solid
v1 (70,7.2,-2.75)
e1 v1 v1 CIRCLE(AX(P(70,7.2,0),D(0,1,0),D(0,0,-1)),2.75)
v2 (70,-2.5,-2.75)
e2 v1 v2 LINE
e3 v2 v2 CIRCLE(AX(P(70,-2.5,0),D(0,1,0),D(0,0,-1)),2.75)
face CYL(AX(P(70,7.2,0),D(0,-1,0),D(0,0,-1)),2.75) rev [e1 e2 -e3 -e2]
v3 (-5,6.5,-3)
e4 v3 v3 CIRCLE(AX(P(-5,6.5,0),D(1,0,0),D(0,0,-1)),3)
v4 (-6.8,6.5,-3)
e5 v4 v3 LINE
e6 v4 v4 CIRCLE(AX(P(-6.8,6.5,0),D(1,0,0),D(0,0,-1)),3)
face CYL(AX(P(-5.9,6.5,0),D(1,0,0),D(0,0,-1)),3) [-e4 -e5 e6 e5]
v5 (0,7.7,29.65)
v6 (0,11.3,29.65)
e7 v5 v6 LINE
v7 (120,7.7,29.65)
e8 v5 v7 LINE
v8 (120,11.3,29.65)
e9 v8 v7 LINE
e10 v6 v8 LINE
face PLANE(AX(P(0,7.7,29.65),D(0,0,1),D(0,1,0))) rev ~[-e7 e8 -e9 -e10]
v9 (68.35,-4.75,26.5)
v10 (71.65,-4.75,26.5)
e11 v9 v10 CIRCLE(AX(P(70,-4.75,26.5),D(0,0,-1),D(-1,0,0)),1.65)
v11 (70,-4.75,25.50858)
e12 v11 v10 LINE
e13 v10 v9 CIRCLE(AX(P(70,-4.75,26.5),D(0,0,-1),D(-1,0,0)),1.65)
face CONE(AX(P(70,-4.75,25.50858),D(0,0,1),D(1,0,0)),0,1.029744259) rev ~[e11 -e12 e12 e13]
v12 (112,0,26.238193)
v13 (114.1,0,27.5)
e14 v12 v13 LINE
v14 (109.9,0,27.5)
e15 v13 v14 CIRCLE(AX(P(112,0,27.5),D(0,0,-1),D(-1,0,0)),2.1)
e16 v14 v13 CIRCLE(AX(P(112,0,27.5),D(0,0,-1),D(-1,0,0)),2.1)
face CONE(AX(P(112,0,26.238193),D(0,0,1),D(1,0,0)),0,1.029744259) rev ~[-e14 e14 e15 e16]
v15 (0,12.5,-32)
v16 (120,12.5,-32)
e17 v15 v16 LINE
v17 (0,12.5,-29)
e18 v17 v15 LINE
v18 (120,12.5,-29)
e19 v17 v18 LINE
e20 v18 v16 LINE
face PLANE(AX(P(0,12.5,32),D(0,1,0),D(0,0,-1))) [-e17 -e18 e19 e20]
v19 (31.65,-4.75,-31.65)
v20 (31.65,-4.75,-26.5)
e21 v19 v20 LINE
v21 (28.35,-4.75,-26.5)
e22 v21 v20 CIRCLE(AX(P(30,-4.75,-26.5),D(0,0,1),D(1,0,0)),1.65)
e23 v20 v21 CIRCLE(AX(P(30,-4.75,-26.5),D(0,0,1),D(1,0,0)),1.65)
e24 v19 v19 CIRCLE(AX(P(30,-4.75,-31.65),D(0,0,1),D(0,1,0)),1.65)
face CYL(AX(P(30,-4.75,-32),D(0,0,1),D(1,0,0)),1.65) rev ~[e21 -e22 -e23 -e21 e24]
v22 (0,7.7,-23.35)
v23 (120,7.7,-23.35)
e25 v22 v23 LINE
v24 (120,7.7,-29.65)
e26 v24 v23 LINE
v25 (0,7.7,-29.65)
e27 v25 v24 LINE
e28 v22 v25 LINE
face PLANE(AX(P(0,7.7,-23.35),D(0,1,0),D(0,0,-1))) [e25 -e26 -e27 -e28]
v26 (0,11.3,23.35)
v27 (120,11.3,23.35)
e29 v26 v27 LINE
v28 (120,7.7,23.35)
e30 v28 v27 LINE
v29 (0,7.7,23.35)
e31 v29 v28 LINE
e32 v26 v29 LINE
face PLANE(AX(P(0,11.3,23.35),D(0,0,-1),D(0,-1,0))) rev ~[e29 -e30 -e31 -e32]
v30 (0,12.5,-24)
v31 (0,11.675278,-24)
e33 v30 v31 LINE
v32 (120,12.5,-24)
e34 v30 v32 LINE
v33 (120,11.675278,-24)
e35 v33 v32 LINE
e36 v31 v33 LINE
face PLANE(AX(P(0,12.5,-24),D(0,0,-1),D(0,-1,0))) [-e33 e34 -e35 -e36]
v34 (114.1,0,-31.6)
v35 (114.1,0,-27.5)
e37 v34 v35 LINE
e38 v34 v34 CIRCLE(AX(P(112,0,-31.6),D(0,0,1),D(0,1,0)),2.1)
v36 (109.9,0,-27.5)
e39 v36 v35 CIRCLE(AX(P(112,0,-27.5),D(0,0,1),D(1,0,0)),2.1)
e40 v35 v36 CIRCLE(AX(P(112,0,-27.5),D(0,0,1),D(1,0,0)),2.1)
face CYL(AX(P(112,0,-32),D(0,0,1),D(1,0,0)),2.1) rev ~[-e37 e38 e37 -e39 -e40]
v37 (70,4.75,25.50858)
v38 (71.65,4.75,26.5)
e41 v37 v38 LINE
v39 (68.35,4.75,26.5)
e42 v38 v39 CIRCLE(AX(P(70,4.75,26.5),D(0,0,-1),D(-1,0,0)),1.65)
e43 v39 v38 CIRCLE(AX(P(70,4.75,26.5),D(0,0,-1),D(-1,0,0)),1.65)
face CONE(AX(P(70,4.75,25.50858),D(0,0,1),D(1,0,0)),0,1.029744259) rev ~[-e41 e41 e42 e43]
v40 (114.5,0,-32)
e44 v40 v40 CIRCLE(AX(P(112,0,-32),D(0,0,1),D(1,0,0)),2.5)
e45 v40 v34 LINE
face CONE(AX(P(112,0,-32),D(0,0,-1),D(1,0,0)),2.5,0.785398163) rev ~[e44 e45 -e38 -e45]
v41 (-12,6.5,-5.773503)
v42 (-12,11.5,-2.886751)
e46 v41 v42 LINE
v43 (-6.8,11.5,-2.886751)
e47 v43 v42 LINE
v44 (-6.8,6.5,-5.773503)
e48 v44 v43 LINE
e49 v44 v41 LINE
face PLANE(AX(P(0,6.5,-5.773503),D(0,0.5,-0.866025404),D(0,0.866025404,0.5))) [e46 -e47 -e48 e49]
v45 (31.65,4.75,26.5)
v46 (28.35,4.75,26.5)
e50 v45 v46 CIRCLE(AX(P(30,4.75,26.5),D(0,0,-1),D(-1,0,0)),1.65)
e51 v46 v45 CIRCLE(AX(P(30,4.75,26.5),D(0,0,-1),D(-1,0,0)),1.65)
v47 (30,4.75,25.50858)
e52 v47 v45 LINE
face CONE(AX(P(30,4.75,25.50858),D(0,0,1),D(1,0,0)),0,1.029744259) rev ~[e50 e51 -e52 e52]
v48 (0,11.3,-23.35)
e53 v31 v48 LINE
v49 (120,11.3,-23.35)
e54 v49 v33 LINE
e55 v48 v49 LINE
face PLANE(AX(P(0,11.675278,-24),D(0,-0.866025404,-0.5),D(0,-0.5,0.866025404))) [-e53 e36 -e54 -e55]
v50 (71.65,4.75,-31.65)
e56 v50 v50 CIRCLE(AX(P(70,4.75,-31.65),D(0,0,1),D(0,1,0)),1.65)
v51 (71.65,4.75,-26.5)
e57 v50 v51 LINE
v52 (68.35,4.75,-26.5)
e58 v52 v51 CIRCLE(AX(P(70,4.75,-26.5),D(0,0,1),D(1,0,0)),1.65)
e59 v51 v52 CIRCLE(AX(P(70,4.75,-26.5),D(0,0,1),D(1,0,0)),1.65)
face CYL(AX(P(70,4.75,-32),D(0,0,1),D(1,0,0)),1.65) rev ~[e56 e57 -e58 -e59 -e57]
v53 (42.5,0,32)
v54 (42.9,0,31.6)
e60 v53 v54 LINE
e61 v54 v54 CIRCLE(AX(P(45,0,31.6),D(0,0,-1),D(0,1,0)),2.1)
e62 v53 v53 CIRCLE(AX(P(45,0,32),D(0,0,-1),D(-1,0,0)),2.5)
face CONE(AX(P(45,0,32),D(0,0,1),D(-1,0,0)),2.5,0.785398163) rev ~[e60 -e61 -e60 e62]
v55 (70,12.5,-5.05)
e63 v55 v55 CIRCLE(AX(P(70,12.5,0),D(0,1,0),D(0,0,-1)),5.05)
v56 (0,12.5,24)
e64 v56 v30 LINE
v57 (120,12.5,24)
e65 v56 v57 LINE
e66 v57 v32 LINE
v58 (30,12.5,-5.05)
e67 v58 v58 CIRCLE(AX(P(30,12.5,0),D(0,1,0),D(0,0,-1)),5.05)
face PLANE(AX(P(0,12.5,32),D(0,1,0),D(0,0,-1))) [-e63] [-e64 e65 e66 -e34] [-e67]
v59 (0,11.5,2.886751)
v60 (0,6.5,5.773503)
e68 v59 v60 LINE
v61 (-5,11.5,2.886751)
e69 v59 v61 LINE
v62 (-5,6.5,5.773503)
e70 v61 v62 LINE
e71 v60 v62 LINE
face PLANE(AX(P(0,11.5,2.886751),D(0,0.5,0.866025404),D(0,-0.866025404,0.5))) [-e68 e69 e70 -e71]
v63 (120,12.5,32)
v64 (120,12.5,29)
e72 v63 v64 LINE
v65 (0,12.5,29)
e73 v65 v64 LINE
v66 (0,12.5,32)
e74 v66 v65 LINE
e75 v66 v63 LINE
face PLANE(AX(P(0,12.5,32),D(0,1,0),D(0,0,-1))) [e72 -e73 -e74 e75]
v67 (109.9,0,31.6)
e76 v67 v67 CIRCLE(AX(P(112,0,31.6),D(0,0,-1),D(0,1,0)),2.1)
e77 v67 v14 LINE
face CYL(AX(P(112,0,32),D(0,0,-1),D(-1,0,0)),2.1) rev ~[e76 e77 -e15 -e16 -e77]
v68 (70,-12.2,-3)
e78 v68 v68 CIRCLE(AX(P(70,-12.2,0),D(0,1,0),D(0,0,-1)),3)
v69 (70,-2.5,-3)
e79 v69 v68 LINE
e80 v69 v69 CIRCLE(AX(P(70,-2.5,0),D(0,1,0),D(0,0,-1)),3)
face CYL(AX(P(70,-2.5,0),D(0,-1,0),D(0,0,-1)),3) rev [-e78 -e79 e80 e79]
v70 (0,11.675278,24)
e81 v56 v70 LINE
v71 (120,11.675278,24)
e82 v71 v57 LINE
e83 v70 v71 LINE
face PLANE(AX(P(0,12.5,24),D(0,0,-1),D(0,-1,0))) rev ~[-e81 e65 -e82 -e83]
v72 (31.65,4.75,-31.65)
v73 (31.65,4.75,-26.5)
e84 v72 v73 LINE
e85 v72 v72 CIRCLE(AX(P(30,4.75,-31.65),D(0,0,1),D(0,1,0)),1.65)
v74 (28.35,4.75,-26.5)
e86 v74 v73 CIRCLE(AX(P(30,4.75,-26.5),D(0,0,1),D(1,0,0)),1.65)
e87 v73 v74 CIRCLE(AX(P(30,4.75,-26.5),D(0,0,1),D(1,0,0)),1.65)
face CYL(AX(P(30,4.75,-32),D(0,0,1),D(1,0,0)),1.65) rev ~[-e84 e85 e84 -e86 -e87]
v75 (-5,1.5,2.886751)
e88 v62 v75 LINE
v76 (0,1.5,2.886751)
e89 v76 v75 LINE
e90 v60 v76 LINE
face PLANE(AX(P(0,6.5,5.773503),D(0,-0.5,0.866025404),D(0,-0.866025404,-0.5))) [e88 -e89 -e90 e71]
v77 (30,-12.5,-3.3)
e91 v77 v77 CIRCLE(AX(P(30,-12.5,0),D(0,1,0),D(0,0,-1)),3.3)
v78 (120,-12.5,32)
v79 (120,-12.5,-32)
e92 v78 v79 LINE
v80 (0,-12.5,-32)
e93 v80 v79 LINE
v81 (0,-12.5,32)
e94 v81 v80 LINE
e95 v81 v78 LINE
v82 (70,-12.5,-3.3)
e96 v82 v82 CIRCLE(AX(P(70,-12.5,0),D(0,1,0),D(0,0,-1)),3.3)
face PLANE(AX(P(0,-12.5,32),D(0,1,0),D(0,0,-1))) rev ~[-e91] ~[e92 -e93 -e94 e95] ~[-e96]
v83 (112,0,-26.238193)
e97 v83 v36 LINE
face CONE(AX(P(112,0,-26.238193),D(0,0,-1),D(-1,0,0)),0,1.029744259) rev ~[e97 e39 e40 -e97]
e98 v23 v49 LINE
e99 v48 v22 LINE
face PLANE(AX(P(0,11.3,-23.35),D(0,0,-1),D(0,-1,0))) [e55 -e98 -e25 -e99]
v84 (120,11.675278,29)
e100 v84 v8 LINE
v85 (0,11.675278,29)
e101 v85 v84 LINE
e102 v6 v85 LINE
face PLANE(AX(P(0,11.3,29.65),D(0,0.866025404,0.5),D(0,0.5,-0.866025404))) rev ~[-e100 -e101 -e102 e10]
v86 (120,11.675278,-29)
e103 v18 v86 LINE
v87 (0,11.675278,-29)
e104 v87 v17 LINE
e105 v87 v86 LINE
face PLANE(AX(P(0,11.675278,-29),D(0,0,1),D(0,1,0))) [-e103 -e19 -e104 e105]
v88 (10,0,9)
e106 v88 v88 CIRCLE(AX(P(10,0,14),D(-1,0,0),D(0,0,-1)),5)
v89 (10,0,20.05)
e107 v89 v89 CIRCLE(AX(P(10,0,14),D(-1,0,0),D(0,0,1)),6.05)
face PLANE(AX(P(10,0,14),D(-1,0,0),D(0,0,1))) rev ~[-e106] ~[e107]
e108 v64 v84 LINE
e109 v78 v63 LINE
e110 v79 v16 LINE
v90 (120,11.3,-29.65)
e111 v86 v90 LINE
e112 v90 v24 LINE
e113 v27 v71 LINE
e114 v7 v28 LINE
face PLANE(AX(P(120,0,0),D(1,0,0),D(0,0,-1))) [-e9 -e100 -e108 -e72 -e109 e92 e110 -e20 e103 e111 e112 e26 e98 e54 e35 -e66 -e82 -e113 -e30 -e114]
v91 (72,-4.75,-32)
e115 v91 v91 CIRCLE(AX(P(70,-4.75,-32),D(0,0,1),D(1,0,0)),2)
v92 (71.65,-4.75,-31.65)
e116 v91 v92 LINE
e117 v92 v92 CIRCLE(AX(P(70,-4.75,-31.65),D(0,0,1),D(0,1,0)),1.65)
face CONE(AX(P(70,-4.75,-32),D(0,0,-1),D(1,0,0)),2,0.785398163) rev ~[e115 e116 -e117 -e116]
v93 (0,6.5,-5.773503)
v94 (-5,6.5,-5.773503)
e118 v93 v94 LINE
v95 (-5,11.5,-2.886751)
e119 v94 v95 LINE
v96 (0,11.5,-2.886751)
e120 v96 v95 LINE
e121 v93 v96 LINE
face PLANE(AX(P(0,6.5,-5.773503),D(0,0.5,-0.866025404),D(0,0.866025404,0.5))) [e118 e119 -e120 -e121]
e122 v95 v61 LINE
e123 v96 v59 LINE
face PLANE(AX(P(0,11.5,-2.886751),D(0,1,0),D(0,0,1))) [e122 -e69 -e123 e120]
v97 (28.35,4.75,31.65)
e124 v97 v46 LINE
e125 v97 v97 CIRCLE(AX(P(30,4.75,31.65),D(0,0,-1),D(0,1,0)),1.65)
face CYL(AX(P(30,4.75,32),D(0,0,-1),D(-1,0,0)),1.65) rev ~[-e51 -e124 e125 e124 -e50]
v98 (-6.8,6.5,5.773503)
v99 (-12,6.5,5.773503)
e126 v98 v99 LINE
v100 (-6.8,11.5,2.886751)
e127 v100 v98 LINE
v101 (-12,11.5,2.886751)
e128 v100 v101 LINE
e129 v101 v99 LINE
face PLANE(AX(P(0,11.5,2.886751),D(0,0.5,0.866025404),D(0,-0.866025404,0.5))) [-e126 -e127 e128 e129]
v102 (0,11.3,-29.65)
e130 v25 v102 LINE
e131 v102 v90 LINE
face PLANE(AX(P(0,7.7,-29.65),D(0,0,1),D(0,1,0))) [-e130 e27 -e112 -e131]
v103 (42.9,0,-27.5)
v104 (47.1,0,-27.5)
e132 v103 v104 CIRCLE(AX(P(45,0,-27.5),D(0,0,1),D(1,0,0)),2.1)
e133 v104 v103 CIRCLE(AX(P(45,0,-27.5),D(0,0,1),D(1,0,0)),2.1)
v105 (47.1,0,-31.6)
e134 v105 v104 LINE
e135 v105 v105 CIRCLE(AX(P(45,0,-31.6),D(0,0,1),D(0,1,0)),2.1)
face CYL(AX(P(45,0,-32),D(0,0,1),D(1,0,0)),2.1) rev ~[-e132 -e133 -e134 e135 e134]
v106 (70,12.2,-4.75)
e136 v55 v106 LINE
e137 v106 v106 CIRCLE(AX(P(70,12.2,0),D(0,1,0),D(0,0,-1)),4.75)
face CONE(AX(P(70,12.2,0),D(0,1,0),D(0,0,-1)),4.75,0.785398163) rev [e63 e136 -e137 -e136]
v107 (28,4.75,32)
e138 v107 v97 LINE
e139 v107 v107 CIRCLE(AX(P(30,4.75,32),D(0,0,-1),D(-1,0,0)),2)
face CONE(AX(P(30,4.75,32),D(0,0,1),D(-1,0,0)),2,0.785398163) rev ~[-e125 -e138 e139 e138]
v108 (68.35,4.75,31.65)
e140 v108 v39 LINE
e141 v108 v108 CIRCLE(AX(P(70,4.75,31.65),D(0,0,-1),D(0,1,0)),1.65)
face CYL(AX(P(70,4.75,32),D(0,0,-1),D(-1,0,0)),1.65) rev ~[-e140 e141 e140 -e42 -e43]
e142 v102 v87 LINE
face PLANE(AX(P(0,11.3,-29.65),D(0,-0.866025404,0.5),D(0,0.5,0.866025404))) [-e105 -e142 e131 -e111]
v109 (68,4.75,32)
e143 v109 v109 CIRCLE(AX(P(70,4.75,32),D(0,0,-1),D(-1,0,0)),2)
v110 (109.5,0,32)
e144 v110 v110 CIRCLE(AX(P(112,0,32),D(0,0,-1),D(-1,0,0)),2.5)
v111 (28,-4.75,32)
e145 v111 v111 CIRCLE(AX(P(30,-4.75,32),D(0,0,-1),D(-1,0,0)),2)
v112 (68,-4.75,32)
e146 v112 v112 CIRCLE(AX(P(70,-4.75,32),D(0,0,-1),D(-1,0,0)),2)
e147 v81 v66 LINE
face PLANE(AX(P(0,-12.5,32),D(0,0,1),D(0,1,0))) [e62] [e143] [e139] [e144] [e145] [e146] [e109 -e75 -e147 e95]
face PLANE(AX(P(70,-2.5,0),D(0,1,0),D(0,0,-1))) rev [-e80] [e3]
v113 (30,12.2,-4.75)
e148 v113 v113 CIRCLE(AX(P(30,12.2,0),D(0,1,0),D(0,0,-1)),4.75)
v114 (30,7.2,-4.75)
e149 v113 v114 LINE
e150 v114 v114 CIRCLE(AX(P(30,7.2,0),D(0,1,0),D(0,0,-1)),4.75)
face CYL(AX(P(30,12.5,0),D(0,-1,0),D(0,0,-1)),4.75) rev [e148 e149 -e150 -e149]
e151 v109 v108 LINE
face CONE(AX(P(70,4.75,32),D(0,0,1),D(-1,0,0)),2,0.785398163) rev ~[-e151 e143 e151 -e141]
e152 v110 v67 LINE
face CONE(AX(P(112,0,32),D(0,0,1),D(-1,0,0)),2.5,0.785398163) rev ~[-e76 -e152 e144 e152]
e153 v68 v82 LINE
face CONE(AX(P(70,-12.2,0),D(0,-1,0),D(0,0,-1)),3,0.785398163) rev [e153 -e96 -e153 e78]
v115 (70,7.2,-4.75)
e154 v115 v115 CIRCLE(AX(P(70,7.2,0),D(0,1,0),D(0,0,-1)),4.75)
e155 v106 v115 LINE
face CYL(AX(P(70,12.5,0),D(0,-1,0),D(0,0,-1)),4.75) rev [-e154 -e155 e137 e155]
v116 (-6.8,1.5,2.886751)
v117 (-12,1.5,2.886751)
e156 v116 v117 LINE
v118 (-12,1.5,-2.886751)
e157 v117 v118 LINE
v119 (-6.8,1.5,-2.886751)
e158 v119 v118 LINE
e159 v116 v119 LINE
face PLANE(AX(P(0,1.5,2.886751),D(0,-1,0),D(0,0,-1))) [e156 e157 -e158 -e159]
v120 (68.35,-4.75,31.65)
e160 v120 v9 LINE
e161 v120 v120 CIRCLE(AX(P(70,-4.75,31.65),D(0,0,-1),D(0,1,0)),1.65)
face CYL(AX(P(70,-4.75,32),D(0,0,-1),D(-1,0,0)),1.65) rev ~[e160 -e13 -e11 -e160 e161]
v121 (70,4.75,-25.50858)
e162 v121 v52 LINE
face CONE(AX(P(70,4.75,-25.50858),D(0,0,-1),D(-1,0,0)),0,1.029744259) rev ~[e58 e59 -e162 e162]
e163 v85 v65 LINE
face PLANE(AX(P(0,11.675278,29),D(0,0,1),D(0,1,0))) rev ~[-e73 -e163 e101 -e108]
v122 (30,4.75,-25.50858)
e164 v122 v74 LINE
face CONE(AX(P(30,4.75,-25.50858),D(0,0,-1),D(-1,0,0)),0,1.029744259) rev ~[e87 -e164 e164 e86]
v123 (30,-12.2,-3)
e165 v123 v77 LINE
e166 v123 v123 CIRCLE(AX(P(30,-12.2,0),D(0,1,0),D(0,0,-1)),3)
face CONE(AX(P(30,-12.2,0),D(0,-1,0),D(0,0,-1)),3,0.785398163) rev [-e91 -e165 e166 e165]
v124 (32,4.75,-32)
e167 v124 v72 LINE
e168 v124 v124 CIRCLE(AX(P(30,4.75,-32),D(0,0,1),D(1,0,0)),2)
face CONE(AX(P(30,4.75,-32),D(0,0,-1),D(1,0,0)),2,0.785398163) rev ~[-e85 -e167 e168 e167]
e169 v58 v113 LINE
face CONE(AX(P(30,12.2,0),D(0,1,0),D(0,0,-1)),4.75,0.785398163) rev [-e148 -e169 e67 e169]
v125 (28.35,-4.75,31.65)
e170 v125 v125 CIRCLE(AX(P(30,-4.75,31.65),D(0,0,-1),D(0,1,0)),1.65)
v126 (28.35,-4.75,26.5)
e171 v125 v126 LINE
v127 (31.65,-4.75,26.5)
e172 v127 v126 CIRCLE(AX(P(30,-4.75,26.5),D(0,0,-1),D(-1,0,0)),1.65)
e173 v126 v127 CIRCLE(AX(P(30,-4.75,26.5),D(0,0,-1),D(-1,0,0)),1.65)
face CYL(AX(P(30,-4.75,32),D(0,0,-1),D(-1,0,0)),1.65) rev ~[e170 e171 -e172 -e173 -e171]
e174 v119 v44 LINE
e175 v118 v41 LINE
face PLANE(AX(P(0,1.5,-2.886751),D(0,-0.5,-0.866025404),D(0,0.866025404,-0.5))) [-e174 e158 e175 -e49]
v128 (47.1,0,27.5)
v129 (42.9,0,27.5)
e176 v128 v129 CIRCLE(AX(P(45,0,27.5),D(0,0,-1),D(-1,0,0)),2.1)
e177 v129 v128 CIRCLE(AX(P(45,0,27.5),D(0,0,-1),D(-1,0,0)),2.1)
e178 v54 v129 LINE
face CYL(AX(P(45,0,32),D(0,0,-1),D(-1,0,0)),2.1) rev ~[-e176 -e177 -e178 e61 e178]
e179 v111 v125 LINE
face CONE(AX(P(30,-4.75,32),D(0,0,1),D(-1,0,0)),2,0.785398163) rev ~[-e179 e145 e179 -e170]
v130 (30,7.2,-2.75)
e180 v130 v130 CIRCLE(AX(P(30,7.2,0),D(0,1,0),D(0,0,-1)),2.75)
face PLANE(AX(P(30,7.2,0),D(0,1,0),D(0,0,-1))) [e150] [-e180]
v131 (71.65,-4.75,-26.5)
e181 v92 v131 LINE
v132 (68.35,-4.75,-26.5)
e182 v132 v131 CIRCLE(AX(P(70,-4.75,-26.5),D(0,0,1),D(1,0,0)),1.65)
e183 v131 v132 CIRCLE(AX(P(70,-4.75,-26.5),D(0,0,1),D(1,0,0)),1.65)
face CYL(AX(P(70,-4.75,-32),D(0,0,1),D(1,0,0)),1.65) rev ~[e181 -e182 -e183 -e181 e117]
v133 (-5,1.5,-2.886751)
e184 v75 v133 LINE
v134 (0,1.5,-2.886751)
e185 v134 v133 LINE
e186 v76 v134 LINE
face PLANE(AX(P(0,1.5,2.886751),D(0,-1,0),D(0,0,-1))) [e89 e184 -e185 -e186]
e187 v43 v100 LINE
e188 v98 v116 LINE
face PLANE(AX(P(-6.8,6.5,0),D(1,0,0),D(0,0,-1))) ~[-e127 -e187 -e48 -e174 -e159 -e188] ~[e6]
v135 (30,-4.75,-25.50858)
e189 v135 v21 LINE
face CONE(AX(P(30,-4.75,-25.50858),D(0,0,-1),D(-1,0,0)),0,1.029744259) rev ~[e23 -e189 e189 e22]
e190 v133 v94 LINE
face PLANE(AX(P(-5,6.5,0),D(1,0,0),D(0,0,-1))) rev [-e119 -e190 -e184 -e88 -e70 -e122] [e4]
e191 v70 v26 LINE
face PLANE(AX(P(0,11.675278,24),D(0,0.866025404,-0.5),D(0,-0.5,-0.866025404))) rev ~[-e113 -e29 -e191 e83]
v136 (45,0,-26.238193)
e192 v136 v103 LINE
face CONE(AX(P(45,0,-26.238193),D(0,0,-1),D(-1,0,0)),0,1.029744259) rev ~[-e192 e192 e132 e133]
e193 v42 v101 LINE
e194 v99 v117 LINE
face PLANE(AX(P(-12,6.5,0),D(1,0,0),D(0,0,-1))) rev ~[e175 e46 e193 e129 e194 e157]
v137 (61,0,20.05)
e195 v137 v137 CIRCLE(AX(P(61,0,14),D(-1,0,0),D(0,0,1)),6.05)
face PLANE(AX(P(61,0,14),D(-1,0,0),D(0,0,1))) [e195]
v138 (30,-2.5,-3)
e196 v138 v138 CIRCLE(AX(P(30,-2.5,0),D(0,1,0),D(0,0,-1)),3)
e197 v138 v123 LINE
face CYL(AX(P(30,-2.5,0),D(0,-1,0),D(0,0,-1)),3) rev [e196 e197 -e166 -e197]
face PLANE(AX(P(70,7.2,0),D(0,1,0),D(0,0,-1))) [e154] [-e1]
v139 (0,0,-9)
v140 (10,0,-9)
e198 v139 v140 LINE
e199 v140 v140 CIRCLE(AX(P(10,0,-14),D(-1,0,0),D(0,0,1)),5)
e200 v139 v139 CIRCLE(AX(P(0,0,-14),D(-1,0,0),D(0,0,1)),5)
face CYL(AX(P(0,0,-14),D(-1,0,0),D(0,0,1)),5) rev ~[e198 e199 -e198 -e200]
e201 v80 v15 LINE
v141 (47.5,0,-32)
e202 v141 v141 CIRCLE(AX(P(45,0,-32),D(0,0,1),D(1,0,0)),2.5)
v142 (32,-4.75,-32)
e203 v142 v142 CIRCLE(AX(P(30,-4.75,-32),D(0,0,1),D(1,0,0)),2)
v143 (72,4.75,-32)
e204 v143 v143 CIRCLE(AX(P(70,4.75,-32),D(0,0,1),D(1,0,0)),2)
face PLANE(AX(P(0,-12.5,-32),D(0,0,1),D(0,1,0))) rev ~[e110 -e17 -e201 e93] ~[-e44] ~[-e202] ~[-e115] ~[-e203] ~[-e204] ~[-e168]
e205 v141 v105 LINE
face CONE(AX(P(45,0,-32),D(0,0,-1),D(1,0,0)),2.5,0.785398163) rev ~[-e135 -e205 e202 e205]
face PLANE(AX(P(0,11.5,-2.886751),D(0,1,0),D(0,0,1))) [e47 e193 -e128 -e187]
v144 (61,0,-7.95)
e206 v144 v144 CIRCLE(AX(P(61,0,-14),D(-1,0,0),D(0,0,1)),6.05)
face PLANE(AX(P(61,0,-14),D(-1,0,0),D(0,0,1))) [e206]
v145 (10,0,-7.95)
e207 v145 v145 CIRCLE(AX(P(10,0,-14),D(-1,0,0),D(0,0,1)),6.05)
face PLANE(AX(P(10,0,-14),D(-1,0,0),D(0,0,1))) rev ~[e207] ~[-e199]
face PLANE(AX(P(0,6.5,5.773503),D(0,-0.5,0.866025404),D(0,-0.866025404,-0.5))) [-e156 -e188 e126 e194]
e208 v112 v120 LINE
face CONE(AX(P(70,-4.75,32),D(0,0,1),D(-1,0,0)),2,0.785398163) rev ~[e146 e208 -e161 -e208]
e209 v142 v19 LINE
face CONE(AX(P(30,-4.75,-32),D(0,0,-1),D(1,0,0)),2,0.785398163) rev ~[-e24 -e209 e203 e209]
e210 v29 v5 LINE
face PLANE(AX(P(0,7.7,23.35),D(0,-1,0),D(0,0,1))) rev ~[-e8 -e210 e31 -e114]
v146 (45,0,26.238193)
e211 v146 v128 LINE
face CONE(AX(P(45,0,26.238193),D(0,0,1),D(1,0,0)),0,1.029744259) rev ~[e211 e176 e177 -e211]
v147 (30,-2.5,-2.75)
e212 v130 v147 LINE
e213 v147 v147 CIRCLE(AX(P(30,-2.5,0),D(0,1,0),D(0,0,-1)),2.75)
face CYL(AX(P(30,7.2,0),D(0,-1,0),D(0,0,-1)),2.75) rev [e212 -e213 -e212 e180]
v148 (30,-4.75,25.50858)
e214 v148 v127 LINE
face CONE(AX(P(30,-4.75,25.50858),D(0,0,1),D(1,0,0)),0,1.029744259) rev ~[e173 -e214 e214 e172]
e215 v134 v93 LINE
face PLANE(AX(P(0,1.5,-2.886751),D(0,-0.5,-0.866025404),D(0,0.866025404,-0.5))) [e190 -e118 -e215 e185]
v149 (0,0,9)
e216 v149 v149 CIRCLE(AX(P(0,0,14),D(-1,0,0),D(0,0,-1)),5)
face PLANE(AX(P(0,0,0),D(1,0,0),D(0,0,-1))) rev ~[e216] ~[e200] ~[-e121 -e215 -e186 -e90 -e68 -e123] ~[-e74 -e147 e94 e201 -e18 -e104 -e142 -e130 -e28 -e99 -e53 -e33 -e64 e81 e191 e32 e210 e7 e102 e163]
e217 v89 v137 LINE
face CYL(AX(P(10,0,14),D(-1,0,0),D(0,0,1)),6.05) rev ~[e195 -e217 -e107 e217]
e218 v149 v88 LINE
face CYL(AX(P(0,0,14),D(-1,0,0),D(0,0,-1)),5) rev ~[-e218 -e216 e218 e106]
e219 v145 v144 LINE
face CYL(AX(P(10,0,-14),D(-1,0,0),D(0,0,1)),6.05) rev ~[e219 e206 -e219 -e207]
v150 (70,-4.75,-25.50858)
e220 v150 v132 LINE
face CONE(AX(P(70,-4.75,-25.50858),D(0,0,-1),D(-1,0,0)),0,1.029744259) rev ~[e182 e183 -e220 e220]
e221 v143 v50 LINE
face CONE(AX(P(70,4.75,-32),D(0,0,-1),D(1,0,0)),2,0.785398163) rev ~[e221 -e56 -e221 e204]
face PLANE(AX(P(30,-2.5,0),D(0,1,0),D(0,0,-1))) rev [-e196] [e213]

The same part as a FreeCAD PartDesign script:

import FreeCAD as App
import Part
import Sketcher
Q = App.Units.Quantity


def edges_at(feature, points):
    """Names of the edges that pass closest to the given points."""
    edges = feature.Shape.Edges
    near = lambda p: min(range(len(edges)), key=lambda i: edges[i].distToShape(Part.Vertex(*p))[0])
    return sorted({f"Edge{near(p) + 1}" for p in points})

doc = App.newDocument("Part")
body = doc.addObject("PartDesign::Body", "Body")

sketch1 = doc.addObject("Sketcher::SketchObject", "Sketch")
body.addObject(sketch1)
sketch1.AttachmentSupport = (doc.YZ_Plane, [""])
sketch1.MapMode = "FlatFace"
sketch1.addGeometry(Part.LineSegment(App.Vector(12, 32, 0), App.Vector(-12, 32, 0)), False)
sketch1.addGeometry(Part.LineSegment(App.Vector(-12, 32, 0), App.Vector(-12, -32, 0)), False)
sketch1.addGeometry(Part.LineSegment(App.Vector(-12, -32, 0), App.Vector(12, -32, 0)), False)
sketch1.addGeometry(Part.LineSegment(App.Vector(12, -32, 0), App.Vector(12, 32, 0)), False)
sketch1.addConstraint(Sketcher.Constraint("Coincident", 0, 2, 1, 1))
sketch1.addConstraint(Sketcher.Constraint("Coincident", 1, 2, 2, 1))
sketch1.addConstraint(Sketcher.Constraint("Coincident", 2, 2, 3, 1))
sketch1.addConstraint(Sketcher.Constraint("Coincident", 3, 2, 0, 1))
sketch1.addConstraint(Sketcher.Constraint("Horizontal", 0))
sketch1.addConstraint(Sketcher.Constraint("Vertical", 1))
sketch1.addConstraint(Sketcher.Constraint("Horizontal", 2))
sketch1.addConstraint(Sketcher.Constraint("Vertical", 3))
sketch1.addConstraint(Sketcher.Constraint("Symmetric", 0, 2, 2, 2, -1, 1))
sketch1.addConstraint(Sketcher.Constraint("DistanceX", 0, 2, 0, 1, 25.0))
sketch1.addConstraint(Sketcher.Constraint("DistanceY", 1, 2, 1, 1, 64.0))
pad1 = doc.addObject("PartDesign::Pad", "Pad")
body.addObject(pad1)
pad1.Profile = sketch1
pad1.Length = 120

sketch2 = doc.addObject("Sketcher::SketchObject", "Sketch001")
body.addObject(sketch2)
sketch2.AttachmentSupport = (doc.YZ_Plane, [""])
sketch2.MapMode = "FlatFace"
sketch2.addGeometry(Part.Circle(App.Vector(0, -14, 0), App.Vector(0, 0, 1), 5), False)
sketch2.addGeometry(Part.Circle(App.Vector(0, 14, 0), App.Vector(0, 0, 1), 5), False)
sketch2.addConstraint(Sketcher.Constraint("Equal", 0, 1))
sketch2.addConstraint(Sketcher.Constraint("Symmetric", 0, 3, 1, 3, -1, 1))
sketch2.addConstraint(Sketcher.Constraint("PointOnObject", 0, 3, -2))
sketch2.addConstraint(Sketcher.Constraint("Diameter", 0, 10.0))
sketch2.addConstraint(Sketcher.Constraint("DistanceY", 0, 3, -1, 1, 14.0))
pocket1 = doc.addObject("PartDesign::Pocket", "Pocket")
body.addObject(pocket1)
pocket1.Profile = sketch2
pocket1.Length = 10
pocket1.Reversed = True

sketch3 = doc.addObject("Sketcher::SketchObject", "Sketch002")
body.addObject(sketch3)
sketch3.AttachmentSupport = (doc.YZ_Plane, [""])
sketch3.MapMode = "FlatFace"
sketch3.AttachmentOffset = App.Placement(App.Vector(0, 0, 10), App.Rotation())
sketch3.addGeometry(Part.Circle(App.Vector(0, 14, 0), App.Vector(0, 0, 1), 6), False)
sketch3.addGeometry(Part.Circle(App.Vector(0, -14, 0), App.Vector(0, 0, 1), 6), False)
sketch3.addConstraint(Sketcher.Constraint("Equal", 0, 1))
sketch3.addConstraint(Sketcher.Constraint("Symmetric", 0, 3, 1, 3, -1, 1))
sketch3.addConstraint(Sketcher.Constraint("PointOnObject", 0, 3, -2))
sketch3.addConstraint(Sketcher.Constraint("Diameter", 0, 12.1))
sketch3.addConstraint(Sketcher.Constraint("DistanceY", -1, 1, 0, 3, 14.0))
pocket2 = doc.addObject("PartDesign::Pocket", "Pocket001")
body.addObject(pocket2)
pocket2.Profile = sketch3
pocket2.Length = 51
pocket2.Reversed = True

sketch4 = doc.addObject("Sketcher::SketchObject", "Sketch003")
body.addObject(sketch4)
sketch4.AttachmentSupport = (doc.YZ_Plane, [""])
sketch4.MapMode = "FlatFace"
sketch4.addGeometry(Part.LineSegment(App.Vector(7.7, 23.4, 0), App.Vector(7.7, 29.6, 0)), False)
sketch4.addGeometry(Part.LineSegment(App.Vector(7.7, 29.6, 0), App.Vector(11.3, 29.6, 0)), False)
sketch4.addGeometry(Part.LineSegment(App.Vector(11.3, 29.6, 0), App.Vector(11.7, 29, 0)), False)
sketch4.addGeometry(Part.LineSegment(App.Vector(11.7, 29, 0), App.Vector(12.5, 29, 0)), False)
sketch4.addGeometry(Part.LineSegment(App.Vector(12.5, 29, 0), App.Vector(12.5, 24, 0)), False)
sketch4.addGeometry(Part.LineSegment(App.Vector(12.5, 24, 0), App.Vector(11.7, 24, 0)), False)
sketch4.addGeometry(Part.LineSegment(App.Vector(11.7, 24, 0), App.Vector(11.3, 23.4, 0)), False)
sketch4.addGeometry(Part.LineSegment(App.Vector(11.3, 23.4, 0), App.Vector(7.7, 23.4, 0)), False)
sketch4.addGeometry(Part.LineSegment(App.Vector(7.7, -23.4, 0), App.Vector(11.3, -23.4, 0)), False)
sketch4.addGeometry(Part.LineSegment(App.Vector(11.3, -23.4, 0), App.Vector(11.7, -24, 0)), False)
sketch4.addGeometry(Part.LineSegment(App.Vector(11.7, -24, 0), App.Vector(12.5, -24, 0)), False)
sketch4.addGeometry(Part.LineSegment(App.Vector(12.5, -24, 0), App.Vector(12.5, -29, 0)), False)
sketch4.addGeometry(Part.LineSegment(App.Vector(12.5, -29, 0), App.Vector(11.7, -29, 0)), False)
sketch4.addGeometry(Part.LineSegment(App.Vector(11.7, -29, 0), App.Vector(11.3, -29.6, 0)), False)
sketch4.addGeometry(Part.LineSegment(App.Vector(11.3, -29.6, 0), App.Vector(7.7, -29.6, 0)), False)
sketch4.addGeometry(Part.LineSegment(App.Vector(7.7, -29.6, 0), App.Vector(7.7, -23.4, 0)), False)
sketch4.addConstraint(Sketcher.Constraint("Coincident", 0, 2, 1, 1))
sketch4.addConstraint(Sketcher.Constraint("Coincident", 1, 2, 2, 1))
sketch4.addConstraint(Sketcher.Constraint("Coincident", 2, 2, 3, 1))
sketch4.addConstraint(Sketcher.Constraint("Coincident", 3, 2, 4, 1))
sketch4.addConstraint(Sketcher.Constraint("Coincident", 4, 2, 5, 1))
sketch4.addConstraint(Sketcher.Constraint("Coincident", 5, 2, 6, 1))
sketch4.addConstraint(Sketcher.Constraint("Coincident", 6, 2, 7, 1))
sketch4.addConstraint(Sketcher.Constraint("Coincident", 7, 2, 0, 1))
sketch4.addConstraint(Sketcher.Constraint("Coincident", 8, 2, 9, 1))
sketch4.addConstraint(Sketcher.Constraint("Coincident", 9, 2, 10, 1))
sketch4.addConstraint(Sketcher.Constraint("Coincident", 10, 2, 11, 1))
sketch4.addConstraint(Sketcher.Constraint("Coincident", 11, 2, 12, 1))
sketch4.addConstraint(Sketcher.Constraint("Coincident", 12, 2, 13, 1))
sketch4.addConstraint(Sketcher.Constraint("Coincident", 13, 2, 14, 1))
sketch4.addConstraint(Sketcher.Constraint("Coincident", 14, 2, 15, 1))
sketch4.addConstraint(Sketcher.Constraint("Coincident", 15, 2, 8, 1))
sketch4.addConstraint(Sketcher.Constraint("Vertical", 0))
sketch4.addConstraint(Sketcher.Constraint("Horizontal", 1))
sketch4.addConstraint(Sketcher.Constraint("Horizontal", 3))
sketch4.addConstraint(Sketcher.Constraint("Vertical", 4))
sketch4.addConstraint(Sketcher.Constraint("Horizontal", 5))
sketch4.addConstraint(Sketcher.Constraint("Horizontal", 7))
sketch4.addConstraint(Sketcher.Constraint("Horizontal", 8))
sketch4.addConstraint(Sketcher.Constraint("Horizontal", 10))
sketch4.addConstraint(Sketcher.Constraint("Vertical", 11))
sketch4.addConstraint(Sketcher.Constraint("Horizontal", 12))
sketch4.addConstraint(Sketcher.Constraint("Horizontal", 14))
sketch4.addConstraint(Sketcher.Constraint("Vertical", 15))
sketch4.addConstraint(Sketcher.Constraint("Symmetric", 6, 2, 8, 2, -1))
sketch4.addConstraint(Sketcher.Constraint("Symmetric", 5, 2, 9, 2, -1))
sketch4.addConstraint(Sketcher.Constraint("Symmetric", 3, 2, 11, 2, -1))
sketch4.addConstraint(Sketcher.Constraint("Symmetric", 1, 2, 13, 2, -1))
sketch4.addConstraint(Sketcher.Constraint("Parallel", 2, 9))
sketch4.addConstraint(Sketcher.Constraint("Parallel", 6, 13))
sketch4.addConstraint(Sketcher.Constraint("Vertical", 2, 2, 5, 2))
sketch4.addConstraint(Sketcher.Constraint("Vertical", 1, 2, 6, 2))
sketch4.addConstraint(Sketcher.Constraint("Vertical", 7, 2, 14, 2))
sketch4.addConstraint(Sketcher.Constraint("DistanceY", 4, 2, 4, 1, 5.0))
sketch4.addConstraint(Sketcher.Constraint("Angle", 2, Q("-60 deg")))
sketch4.addConstraint(Sketcher.Constraint("DistanceX", 1, 1, 1, 2, 3.6))
sketch4.addConstraint(Sketcher.Constraint("DistanceY", 0, 1, 0, 2, 6.3))
sketch4.addConstraint(Sketcher.Constraint("DistanceY", -1, 1, 2, 2, 29.0))
sketch4.addConstraint(Sketcher.Constraint("DistanceX", -1, 1, 0, 2, 7.7))
sketch4.addConstraint(Sketcher.Constraint("DistanceX", -1, 1, 3, 2, 12.5))
pocket3 = doc.addObject("PartDesign::Pocket", "Pocket002")
body.addObject(pocket3)
pocket3.Profile = sketch4
pocket3.Type = "ThroughAll"
pocket3.Reversed = True

sketch5 = doc.addObject("Sketcher::SketchObject", "Sketch004")
body.addObject(sketch5)
sketch5.AttachmentSupport = (doc.XY_Plane, [""])
sketch5.MapMode = "FlatFace"
sketch5.addGeometry(Part.LineSegment(App.Vector(30, 12.5, 0), App.Vector(25.2, 12.5, 0)), False)
sketch5.addGeometry(Part.LineSegment(App.Vector(25.2, 12.5, 0), App.Vector(25.2, 7.2, 0)), False)
sketch5.addGeometry(Part.LineSegment(App.Vector(25.2, 7.2, 0), App.Vector(27.2, 7.2, 0)), False)
sketch5.addGeometry(Part.LineSegment(App.Vector(27.2, 7.2, 0), App.Vector(27.2, -12.5, 0)), False)
sketch5.addGeometry(Part.LineSegment(App.Vector(27.2, -12.5, 0), App.Vector(30, -12.5, 0)), False)
sketch5.addGeometry(Part.LineSegment(App.Vector(30, -12.5, 0), App.Vector(30, 12.5, 0)), False)
sketch5.addGeometry(Part.LineSegment(App.Vector(30, -12.5, 0), App.Vector(30, 12.5, 0)), True)
sketch5.addConstraint(Sketcher.Constraint("Coincident", 0, 2, 1, 1))
sketch5.addConstraint(Sketcher.Constraint("Coincident", 1, 2, 2, 1))
sketch5.addConstraint(Sketcher.Constraint("Coincident", 2, 2, 3, 1))
sketch5.addConstraint(Sketcher.Constraint("Coincident", 3, 2, 4, 1))
sketch5.addConstraint(Sketcher.Constraint("Coincident", 4, 2, 5, 1))
sketch5.addConstraint(Sketcher.Constraint("Coincident", 5, 2, 0, 1))
sketch5.addConstraint(Sketcher.Constraint("Horizontal", 0))
sketch5.addConstraint(Sketcher.Constraint("Vertical", 1))
sketch5.addConstraint(Sketcher.Constraint("Horizontal", 2))
sketch5.addConstraint(Sketcher.Constraint("Vertical", 3))
sketch5.addConstraint(Sketcher.Constraint("Horizontal", 4))
sketch5.addConstraint(Sketcher.Constraint("Vertical", 5))
sketch5.addConstraint(Sketcher.Constraint("Vertical", 6))
sketch5.addConstraint(Sketcher.Constraint("Coincident", 6, 1, 4, 2))
sketch5.addConstraint(Sketcher.Constraint("Horizontal", 0, 2, 6, 2))
sketch5.addConstraint(Sketcher.Constraint("DistanceX", 2, 1, 2, 2, 2.0))
sketch5.addConstraint(Sketcher.Constraint("DistanceY", 5, 1, 5, 2, 25.0))
sketch5.addConstraint(Sketcher.Constraint("DistanceY", 1, 2, 1, 1, 5.3))
sketch5.addConstraint(Sketcher.Constraint("DistanceX", -1, 1, 4, 2, 30.0))
sketch5.addConstraint(Sketcher.Constraint("DistanceX", 0, 2, 0, 1, 4.75))
sketch5.addConstraint(Sketcher.Constraint("DistanceY", -1, 1, 0, 2, 12.5))
groove = doc.addObject("PartDesign::Groove", "Groove")
body.addObject(groove)
groove.Profile = sketch5
groove.ReferenceAxis = (sketch5, ["Axis0"])
groove.Angle = 360
doc.recompute()

chamfer = doc.addObject("PartDesign::Chamfer", "Chamfer")
body.addObject(chamfer)
chamfer.Base = (groove, edges_at(groove, [(30, 12.5, 4.75)]))
chamfer.Size = 0.3
doc.recompute()

linearpattern = doc.addObject("PartDesign::LinearPattern", "LinearPattern")
body.addObject(linearpattern)
linearpattern.Originals = [groove]
linearpattern.Direction = (doc.X_Axis, [""])
linearpattern.Mode = "offset"
linearpattern.Offset = 40
linearpattern.Occurrences = 2
body.Tip = linearpattern
doc.recompute()

chamfer2 = doc.addObject("PartDesign::Chamfer", "Chamfer001")
body.addObject(chamfer2)
chamfer2.Base = (linearpattern, edges_at(linearpattern, [(70, 12.5, 4.75)]))
chamfer2.Size = 0.3

sketch6 = doc.addObject("Sketcher::SketchObject", "Sketch005")
body.addObject(sketch6)
sketch6.AttachmentSupport = (doc.YZ_Plane, [""])
sketch6.MapMode = "FlatFace"
sketch6.AttachmentOffset = App.Placement(App.Vector(0, 0, 30), App.Rotation())
sketch6.addGeometry(Part.LineSegment(App.Vector(0.15, 0, 0), App.Vector(-12.5, 0, 0)), False)
sketch6.addGeometry(Part.LineSegment(App.Vector(-12.5, 0, 0), App.Vector(-12.5, -3.3, 0)), False)
sketch6.addGeometry(Part.LineSegment(App.Vector(-12.5, -3.3, 0), App.Vector(-12.2, -3, 0)), False)
sketch6.addGeometry(Part.LineSegment(App.Vector(-12.2, -3, 0), App.Vector(-2.5, -3, 0)), False)
sketch6.addGeometry(Part.LineSegment(App.Vector(-2.5, -3, 0), App.Vector(-2.5, -2.75, 0)), False)
sketch6.addGeometry(Part.LineSegment(App.Vector(-2.5, -2.75, 0), App.Vector(-1.5, -2.75, 0)), False)
sketch6.addGeometry(Part.LineSegment(App.Vector(-1.5, -2.75, 0), App.Vector(0.15, 0, 0)), False)
sketch6.addConstraint(Sketcher.Constraint("Coincident", 0, 2, 1, 1))
sketch6.addConstraint(Sketcher.Constraint("Coincident", 1, 2, 2, 1))
sketch6.addConstraint(Sketcher.Constraint("Coincident", 2, 2, 3, 1))
sketch6.addConstraint(Sketcher.Constraint("Coincident", 3, 2, 4, 1))
sketch6.addConstraint(Sketcher.Constraint("Coincident", 4, 2, 5, 1))
sketch6.addConstraint(Sketcher.Constraint("Coincident", 5, 2, 6, 1))
sketch6.addConstraint(Sketcher.Constraint("Coincident", 6, 2, 0, 1))
sketch6.addConstraint(Sketcher.Constraint("Horizontal", 0))
sketch6.addConstraint(Sketcher.Constraint("Vertical", 1))
sketch6.addConstraint(Sketcher.Constraint("Horizontal", 3))
sketch6.addConstraint(Sketcher.Constraint("Vertical", 4))
sketch6.addConstraint(Sketcher.Constraint("Horizontal", 5))
sketch6.addConstraint(Sketcher.Constraint("PointOnObject", 0, 2, -1))
sketch6.addConstraint(Sketcher.Constraint("DistanceX", 5, 1, 5, 2, 1.0))
sketch6.addConstraint(Sketcher.Constraint("Angle", 2, Q("45 deg")))
sketch6.addConstraint(Sketcher.Constraint("Angle", 6, Q("59 deg")))
sketch6.addConstraint(Sketcher.Constraint("DistanceX", 3, 1, 3, 2, 9.7))
sketch6.addConstraint(Sketcher.Constraint("DistanceY", 1, 2, 1, 1, 3.3))
sketch6.addConstraint(Sketcher.Constraint("DistanceY", 2, 2, -1, 1, 3.0))
sketch6.addConstraint(Sketcher.Constraint("DistanceY", 4, 1, 4, 2, 0.25))
sketch6.addConstraint(Sketcher.Constraint("DistanceX", 0, 2, -1, 1, 12.5))
groove2 = doc.addObject("PartDesign::Groove", "Groove001")
body.addObject(groove2)
groove2.Profile = sketch6
groove2.ReferenceAxis = (sketch6, ["H_Axis"])
groove2.Angle = 360
doc.recompute()

linearpattern2 = doc.addObject("PartDesign::LinearPattern", "LinearPattern001")
body.addObject(linearpattern2)
linearpattern2.Originals = [groove2]
linearpattern2.Direction = (doc.X_Axis, [""])
linearpattern2.Mode = "offset"
linearpattern2.Offset = 40
linearpattern2.Occurrences = 2
body.Tip = linearpattern2

sketch7 = doc.addObject("Sketcher::SketchObject", "Sketch006")
body.addObject(sketch7)
sketch7.AttachmentSupport = (doc.YZ_Plane, [""])
sketch7.MapMode = "FlatFace"
sketch7.addGeometry(Part.LineSegment(App.Vector(12, 3, 0), App.Vector(12, -3, 0)), False)
sketch7.addGeometry(Part.LineSegment(App.Vector(12, -3, 0), App.Vector(6, -6, 0)), False)
sketch7.addGeometry(Part.LineSegment(App.Vector(6, -6, 0), App.Vector(2, -3, 0)), False)
sketch7.addGeometry(Part.LineSegment(App.Vector(2, -3, 0), App.Vector(2, 3, 0)), False)
sketch7.addGeometry(Part.LineSegment(App.Vector(2, 3, 0), App.Vector(6, 6, 0)), False)
sketch7.addGeometry(Part.LineSegment(App.Vector(6, 6, 0), App.Vector(12, 3, 0)), False)
sketch7.addConstraint(Sketcher.Constraint("Coincident", 0, 2, 1, 1))
sketch7.addConstraint(Sketcher.Constraint("Coincident", 1, 2, 2, 1))
sketch7.addConstraint(Sketcher.Constraint("Coincident", 2, 2, 3, 1))
sketch7.addConstraint(Sketcher.Constraint("Coincident", 3, 2, 4, 1))
sketch7.addConstraint(Sketcher.Constraint("Coincident", 4, 2, 5, 1))
sketch7.addConstraint(Sketcher.Constraint("Coincident", 5, 2, 0, 1))
sketch7.addConstraint(Sketcher.Constraint("Vertical", 0))
sketch7.addConstraint(Sketcher.Constraint("Vertical", 3))
sketch7.addConstraint(Sketcher.Constraint("Symmetric", 1, 2, 4, 2, -1))
sketch7.addConstraint(Sketcher.Constraint("Parallel", 1, 4))
sketch7.addConstraint(Sketcher.Constraint("Parallel", 2, 5))
sketch7.addConstraint(Sketcher.Constraint("Horizontal", 0, 2, 2, 2))
sketch7.addConstraint(Sketcher.Constraint("Horizontal", 3, 2, 5, 2))
sketch7.addConstraint(Sketcher.Constraint("Angle", 1, Q("-150 deg")))
sketch7.addConstraint(Sketcher.Constraint("DistanceX", 1, 2, 0, 2, 5.0))
sketch7.addConstraint(Sketcher.Constraint("DistanceX", -1, 1, 0, 2, 11.5))
sketch7.addConstraint(Sketcher.Constraint("DistanceY", 0, 2, 0, 1, 5.773503))
pad2 = doc.addObject("PartDesign::Pad", "Pad001")
body.addObject(pad2)
pad2.Profile = sketch7
pad2.Length = 12
pad2.Reversed = True

sketch8 = doc.addObject("Sketcher::SketchObject", "Sketch007")
body.addObject(sketch8)
sketch8.AttachmentSupport = (doc.XY_Plane, [""])
sketch8.MapMode = "FlatFace"
sketch8.addGeometry(Part.LineSegment(App.Vector(-6.8, 34.5, 0), App.Vector(-6.8, 9.5, 0)), False)
sketch8.addGeometry(Part.LineSegment(App.Vector(-6.8, 9.5, 0), App.Vector(-5, 9.5, 0)), False)
sketch8.addGeometry(Part.LineSegment(App.Vector(-5, 9.5, 0), App.Vector(-5, 34.5, 0)), False)
sketch8.addGeometry(Part.LineSegment(App.Vector(-5, 34.5, 0), App.Vector(-6.8, 34.5, 0)), False)
sketch8.addGeometry(Part.LineSegment(App.Vector(-6.8, 6.5, 0), App.Vector(-5, 6.5, 0)), True)
sketch8.addConstraint(Sketcher.Constraint("Coincident", 0, 2, 1, 1))
sketch8.addConstraint(Sketcher.Constraint("Coincident", 1, 2, 2, 1))
sketch8.addConstraint(Sketcher.Constraint("Coincident", 2, 2, 3, 1))
sketch8.addConstraint(Sketcher.Constraint("Coincident", 3, 2, 0, 1))
sketch8.addConstraint(Sketcher.Constraint("Vertical", 0))
sketch8.addConstraint(Sketcher.Constraint("Horizontal", 1))
sketch8.addConstraint(Sketcher.Constraint("Vertical", 2))
sketch8.addConstraint(Sketcher.Constraint("Horizontal", 3))
sketch8.addConstraint(Sketcher.Constraint("Horizontal", 4))
sketch8.addConstraint(Sketcher.Constraint("Vertical", 3, 2, 4, 1))
sketch8.addConstraint(Sketcher.Constraint("Vertical", 2, 2, 4, 2))
sketch8.addConstraint(Sketcher.Constraint("DistanceY", 0, 2, 0, 1, 25.0))
sketch8.addConstraint(Sketcher.Constraint("DistanceX", 1, 1, 1, 2, 1.8))
sketch8.addConstraint(Sketcher.Constraint("DistanceX", 1, 2, -1, 1, 5.0))
sketch8.addConstraint(Sketcher.Constraint("DistanceY", 4, 1, 0, 2, 3.0))
sketch8.addConstraint(Sketcher.Constraint("DistanceY", -1, 1, 0, 2, 9.5))
groove3 = doc.addObject("PartDesign::Groove", "Groove002")
body.addObject(groove3)
groove3.Profile = sketch8
groove3.ReferenceAxis = (sketch8, ["Axis0"])
groove3.Angle = 360

sketch9 = doc.addObject("Sketcher::SketchObject", "Sketch008")
body.addObject(sketch9)
sketch9.AttachmentSupport = (doc.XY_Plane, [""])
sketch9.MapMode = "FlatFace"
sketch9.AttachmentOffset = App.Placement(App.Vector(0, 0, 32), App.Rotation())
sketch9.addGeometry(Part.Circle(App.Vector(45, 0, 0), App.Vector(0, 0, 1), 2.1), False)
sketch9.addGeometry(Part.Circle(App.Vector(112, 0, 0), App.Vector(0, 0, 1), 2.1), False)
sketch9.addConstraint(Sketcher.Constraint("Equal", 0, 1))
sketch9.addConstraint(Sketcher.Constraint("PointOnObject", 0, 3, -1))
sketch9.addConstraint(Sketcher.Constraint("PointOnObject", 1, 3, -1))
sketch9.addConstraint(Sketcher.Constraint("Diameter", 0, 4.2))
sketch9.addConstraint(Sketcher.Constraint("DistanceX", -1, 1, 0, 3, 45.0))
sketch9.addConstraint(Sketcher.Constraint("DistanceX", -1, 1, 1, 3, 112.0))
doc.recompute()
hole = doc.addObject("PartDesign::Hole", "Hole")
body.addObject(hole)
hole.Profile = sketch9
hole.ThreadType = "None"
hole.Diameter = 4.2
hole.DepthType = "Dimension"
hole.Depth = 4.5
hole.DrillPoint = "Angled"
hole.DrillPointAngle = 118
hole.HoleCutType = "Countersink"
hole.HoleCutDiameter = 5
hole.HoleCutCountersinkAngle = 90

sketch10 = doc.addObject("Sketcher::SketchObject", "Sketch009")
body.addObject(sketch10)
sketch10.AttachmentSupport = (doc.XY_Plane, [""])
sketch10.MapMode = "FlatFace"
sketch10.AttachmentOffset = App.Placement(App.Vector(0, 0, -32), App.Rotation())
sketch10.addGeometry(Part.Circle(App.Vector(112, 0, 0), App.Vector(0, 0, 1), 2.1), False)
sketch10.addGeometry(Part.Circle(App.Vector(45, 0, 0), App.Vector(0, 0, 1), 2.1), False)
sketch10.addConstraint(Sketcher.Constraint("Equal", 0, 1))
sketch10.addConstraint(Sketcher.Constraint("PointOnObject", 0, 3, -1))
sketch10.addConstraint(Sketcher.Constraint("PointOnObject", 1, 3, -1))
sketch10.addConstraint(Sketcher.Constraint("Diameter", 0, 4.2))
sketch10.addConstraint(Sketcher.Constraint("DistanceX", -1, 1, 0, 3, 112.0))
sketch10.addConstraint(Sketcher.Constraint("DistanceX", -1, 1, 1, 3, 45.0))
doc.recompute()
hole2 = doc.addObject("PartDesign::Hole", "Hole001")
body.addObject(hole2)
hole2.Profile = sketch10
hole2.ThreadType = "None"
hole2.Diameter = 4.2
hole2.DepthType = "Dimension"
hole2.Depth = 4.5
hole2.DrillPoint = "Angled"
hole2.DrillPointAngle = 118
hole2.HoleCutType = "Countersink"
hole2.HoleCutDiameter = 5
hole2.HoleCutCountersinkAngle = 90
hole2.Reversed = True

sketch11 = doc.addObject("Sketcher::SketchObject", "Sketch010")
body.addObject(sketch11)
sketch11.AttachmentSupport = (doc.XY_Plane, [""])
sketch11.MapMode = "FlatFace"
sketch11.AttachmentOffset = App.Placement(App.Vector(0, 0, 32), App.Rotation())
sketch11.addGeometry(Part.Circle(App.Vector(30, -4.8, 0), App.Vector(0, 0, 1), 1.6), False)
sketch11.addGeometry(Part.Circle(App.Vector(70, -4.8, 0), App.Vector(0, 0, 1), 1.6), False)
sketch11.addConstraint(Sketcher.Constraint("Equal", 0, 1))
sketch11.addConstraint(Sketcher.Constraint("Horizontal", 0, 3, 1, 3))
sketch11.addConstraint(Sketcher.Constraint("Diameter", 0, 3.3))
sketch11.addConstraint(Sketcher.Constraint("DistanceX", -1, 1, 0, 3, 30.0))
sketch11.addConstraint(Sketcher.Constraint("DistanceX", -1, 1, 1, 3, 70.0))
sketch11.addConstraint(Sketcher.Constraint("DistanceY", 0, 3, -1, 1, 4.75))
doc.recompute()
hole3 = doc.addObject("PartDesign::Hole", "Hole002")
body.addObject(hole3)
hole3.Profile = sketch11
hole3.ThreadType = "None"
hole3.Diameter = 3.3
hole3.DepthType = "Dimension"
hole3.Depth = 5.5
hole3.DrillPoint = "Angled"
hole3.DrillPointAngle = 118
hole3.HoleCutType = "Countersink"
hole3.HoleCutDiameter = 4
hole3.HoleCutCountersinkAngle = 90

sketch12 = doc.addObject("Sketcher::SketchObject", "Sketch011")
body.addObject(sketch12)
sketch12.AttachmentSupport = (doc.XY_Plane, [""])
sketch12.MapMode = "FlatFace"
sketch12.AttachmentOffset = App.Placement(App.Vector(0, 0, -32), App.Rotation())
sketch12.addGeometry(Part.Circle(App.Vector(70, -4.8, 0), App.Vector(0, 0, 1), 1.6), False)
sketch12.addGeometry(Part.Circle(App.Vector(30, -4.8, 0), App.Vector(0, 0, 1), 1.6), False)
sketch12.addConstraint(Sketcher.Constraint("Equal", 0, 1))
sketch12.addConstraint(Sketcher.Constraint("Horizontal", 0, 3, 1, 3))
sketch12.addConstraint(Sketcher.Constraint("Diameter", 0, 3.3))
sketch12.addConstraint(Sketcher.Constraint("DistanceX", -1, 1, 0, 3, 70.0))
sketch12.addConstraint(Sketcher.Constraint("DistanceX", -1, 1, 1, 3, 30.0))
sketch12.addConstraint(Sketcher.Constraint("DistanceY", 0, 3, -1, 1, 4.75))
doc.recompute()
hole4 = doc.addObject("PartDesign::Hole", "Hole003")
body.addObject(hole4)
hole4.Profile = sketch12
hole4.ThreadType = "None"
hole4.Diameter = 3.3
hole4.DepthType = "Dimension"
hole4.Depth = 5.5
hole4.DrillPoint = "Angled"
hole4.DrillPointAngle = 118
hole4.HoleCutType = "Countersink"
hole4.HoleCutDiameter = 4
hole4.HoleCutCountersinkAngle = 90
hole4.Reversed = True

sketch13 = doc.addObject("Sketcher::SketchObject", "Sketch012")
body.addObject(sketch13)
sketch13.AttachmentSupport = (doc.XY_Plane, [""])
sketch13.MapMode = "FlatFace"
sketch13.AttachmentOffset = App.Placement(App.Vector(0, 0, 32), App.Rotation())
sketch13.addGeometry(Part.Circle(App.Vector(30, 4.8, 0), App.Vector(0, 0, 1), 1.6), False)
sketch13.addGeometry(Part.Circle(App.Vector(70, 4.8, 0), App.Vector(0, 0, 1), 1.6), False)
sketch13.addConstraint(Sketcher.Constraint("Equal", 0, 1))
sketch13.addConstraint(Sketcher.Constraint("Horizontal", 0, 3, 1, 3))
sketch13.addConstraint(Sketcher.Constraint("Diameter", 0, 3.3))
sketch13.addConstraint(Sketcher.Constraint("DistanceX", -1, 1, 0, 3, 30.0))
sketch13.addConstraint(Sketcher.Constraint("DistanceX", -1, 1, 1, 3, 70.0))
sketch13.addConstraint(Sketcher.Constraint("DistanceY", -1, 1, 0, 3, 4.75))
doc.recompute()
hole5 = doc.addObject("PartDesign::Hole", "Hole004")
body.addObject(hole5)
hole5.Profile = sketch13
hole5.ThreadType = "None"
hole5.Diameter = 3.3
hole5.DepthType = "Dimension"
hole5.Depth = 5.5
hole5.DrillPoint = "Angled"
hole5.DrillPointAngle = 118
hole5.HoleCutType = "Countersink"
hole5.HoleCutDiameter = 4
hole5.HoleCutCountersinkAngle = 90

sketch14 = doc.addObject("Sketcher::SketchObject", "Sketch013")
body.addObject(sketch14)
sketch14.AttachmentSupport = (doc.XY_Plane, [""])
sketch14.MapMode = "FlatFace"
sketch14.AttachmentOffset = App.Placement(App.Vector(0, 0, -32), App.Rotation())
sketch14.addGeometry(Part.Circle(App.Vector(70, 4.8, 0), App.Vector(0, 0, 1), 1.6), False)
sketch14.addGeometry(Part.Circle(App.Vector(30, 4.8, 0), App.Vector(0, 0, 1), 1.6), False)
sketch14.addConstraint(Sketcher.Constraint("Equal", 0, 1))
sketch14.addConstraint(Sketcher.Constraint("Horizontal", 0, 3, 1, 3))
sketch14.addConstraint(Sketcher.Constraint("Diameter", 0, 3.3))
sketch14.addConstraint(Sketcher.Constraint("DistanceX", -1, 1, 0, 3, 70.0))
sketch14.addConstraint(Sketcher.Constraint("DistanceX", -1, 1, 1, 3, 30.0))
sketch14.addConstraint(Sketcher.Constraint("DistanceY", -1, 1, 0, 3, 4.75))
doc.recompute()
hole6 = doc.addObject("PartDesign::Hole", "Hole005")
body.addObject(hole6)
hole6.Profile = sketch14
hole6.ThreadType = "None"
hole6.Diameter = 3.3
hole6.DepthType = "Dimension"
hole6.Depth = 5.5
hole6.DrillPoint = "Angled"
hole6.DrillPointAngle = 118
hole6.HoleCutType = "Countersink"
hole6.HoleCutDiameter = 4
hole6.HoleCutCountersinkAngle = 90
hole6.Reversed = True

doc.recompute()
